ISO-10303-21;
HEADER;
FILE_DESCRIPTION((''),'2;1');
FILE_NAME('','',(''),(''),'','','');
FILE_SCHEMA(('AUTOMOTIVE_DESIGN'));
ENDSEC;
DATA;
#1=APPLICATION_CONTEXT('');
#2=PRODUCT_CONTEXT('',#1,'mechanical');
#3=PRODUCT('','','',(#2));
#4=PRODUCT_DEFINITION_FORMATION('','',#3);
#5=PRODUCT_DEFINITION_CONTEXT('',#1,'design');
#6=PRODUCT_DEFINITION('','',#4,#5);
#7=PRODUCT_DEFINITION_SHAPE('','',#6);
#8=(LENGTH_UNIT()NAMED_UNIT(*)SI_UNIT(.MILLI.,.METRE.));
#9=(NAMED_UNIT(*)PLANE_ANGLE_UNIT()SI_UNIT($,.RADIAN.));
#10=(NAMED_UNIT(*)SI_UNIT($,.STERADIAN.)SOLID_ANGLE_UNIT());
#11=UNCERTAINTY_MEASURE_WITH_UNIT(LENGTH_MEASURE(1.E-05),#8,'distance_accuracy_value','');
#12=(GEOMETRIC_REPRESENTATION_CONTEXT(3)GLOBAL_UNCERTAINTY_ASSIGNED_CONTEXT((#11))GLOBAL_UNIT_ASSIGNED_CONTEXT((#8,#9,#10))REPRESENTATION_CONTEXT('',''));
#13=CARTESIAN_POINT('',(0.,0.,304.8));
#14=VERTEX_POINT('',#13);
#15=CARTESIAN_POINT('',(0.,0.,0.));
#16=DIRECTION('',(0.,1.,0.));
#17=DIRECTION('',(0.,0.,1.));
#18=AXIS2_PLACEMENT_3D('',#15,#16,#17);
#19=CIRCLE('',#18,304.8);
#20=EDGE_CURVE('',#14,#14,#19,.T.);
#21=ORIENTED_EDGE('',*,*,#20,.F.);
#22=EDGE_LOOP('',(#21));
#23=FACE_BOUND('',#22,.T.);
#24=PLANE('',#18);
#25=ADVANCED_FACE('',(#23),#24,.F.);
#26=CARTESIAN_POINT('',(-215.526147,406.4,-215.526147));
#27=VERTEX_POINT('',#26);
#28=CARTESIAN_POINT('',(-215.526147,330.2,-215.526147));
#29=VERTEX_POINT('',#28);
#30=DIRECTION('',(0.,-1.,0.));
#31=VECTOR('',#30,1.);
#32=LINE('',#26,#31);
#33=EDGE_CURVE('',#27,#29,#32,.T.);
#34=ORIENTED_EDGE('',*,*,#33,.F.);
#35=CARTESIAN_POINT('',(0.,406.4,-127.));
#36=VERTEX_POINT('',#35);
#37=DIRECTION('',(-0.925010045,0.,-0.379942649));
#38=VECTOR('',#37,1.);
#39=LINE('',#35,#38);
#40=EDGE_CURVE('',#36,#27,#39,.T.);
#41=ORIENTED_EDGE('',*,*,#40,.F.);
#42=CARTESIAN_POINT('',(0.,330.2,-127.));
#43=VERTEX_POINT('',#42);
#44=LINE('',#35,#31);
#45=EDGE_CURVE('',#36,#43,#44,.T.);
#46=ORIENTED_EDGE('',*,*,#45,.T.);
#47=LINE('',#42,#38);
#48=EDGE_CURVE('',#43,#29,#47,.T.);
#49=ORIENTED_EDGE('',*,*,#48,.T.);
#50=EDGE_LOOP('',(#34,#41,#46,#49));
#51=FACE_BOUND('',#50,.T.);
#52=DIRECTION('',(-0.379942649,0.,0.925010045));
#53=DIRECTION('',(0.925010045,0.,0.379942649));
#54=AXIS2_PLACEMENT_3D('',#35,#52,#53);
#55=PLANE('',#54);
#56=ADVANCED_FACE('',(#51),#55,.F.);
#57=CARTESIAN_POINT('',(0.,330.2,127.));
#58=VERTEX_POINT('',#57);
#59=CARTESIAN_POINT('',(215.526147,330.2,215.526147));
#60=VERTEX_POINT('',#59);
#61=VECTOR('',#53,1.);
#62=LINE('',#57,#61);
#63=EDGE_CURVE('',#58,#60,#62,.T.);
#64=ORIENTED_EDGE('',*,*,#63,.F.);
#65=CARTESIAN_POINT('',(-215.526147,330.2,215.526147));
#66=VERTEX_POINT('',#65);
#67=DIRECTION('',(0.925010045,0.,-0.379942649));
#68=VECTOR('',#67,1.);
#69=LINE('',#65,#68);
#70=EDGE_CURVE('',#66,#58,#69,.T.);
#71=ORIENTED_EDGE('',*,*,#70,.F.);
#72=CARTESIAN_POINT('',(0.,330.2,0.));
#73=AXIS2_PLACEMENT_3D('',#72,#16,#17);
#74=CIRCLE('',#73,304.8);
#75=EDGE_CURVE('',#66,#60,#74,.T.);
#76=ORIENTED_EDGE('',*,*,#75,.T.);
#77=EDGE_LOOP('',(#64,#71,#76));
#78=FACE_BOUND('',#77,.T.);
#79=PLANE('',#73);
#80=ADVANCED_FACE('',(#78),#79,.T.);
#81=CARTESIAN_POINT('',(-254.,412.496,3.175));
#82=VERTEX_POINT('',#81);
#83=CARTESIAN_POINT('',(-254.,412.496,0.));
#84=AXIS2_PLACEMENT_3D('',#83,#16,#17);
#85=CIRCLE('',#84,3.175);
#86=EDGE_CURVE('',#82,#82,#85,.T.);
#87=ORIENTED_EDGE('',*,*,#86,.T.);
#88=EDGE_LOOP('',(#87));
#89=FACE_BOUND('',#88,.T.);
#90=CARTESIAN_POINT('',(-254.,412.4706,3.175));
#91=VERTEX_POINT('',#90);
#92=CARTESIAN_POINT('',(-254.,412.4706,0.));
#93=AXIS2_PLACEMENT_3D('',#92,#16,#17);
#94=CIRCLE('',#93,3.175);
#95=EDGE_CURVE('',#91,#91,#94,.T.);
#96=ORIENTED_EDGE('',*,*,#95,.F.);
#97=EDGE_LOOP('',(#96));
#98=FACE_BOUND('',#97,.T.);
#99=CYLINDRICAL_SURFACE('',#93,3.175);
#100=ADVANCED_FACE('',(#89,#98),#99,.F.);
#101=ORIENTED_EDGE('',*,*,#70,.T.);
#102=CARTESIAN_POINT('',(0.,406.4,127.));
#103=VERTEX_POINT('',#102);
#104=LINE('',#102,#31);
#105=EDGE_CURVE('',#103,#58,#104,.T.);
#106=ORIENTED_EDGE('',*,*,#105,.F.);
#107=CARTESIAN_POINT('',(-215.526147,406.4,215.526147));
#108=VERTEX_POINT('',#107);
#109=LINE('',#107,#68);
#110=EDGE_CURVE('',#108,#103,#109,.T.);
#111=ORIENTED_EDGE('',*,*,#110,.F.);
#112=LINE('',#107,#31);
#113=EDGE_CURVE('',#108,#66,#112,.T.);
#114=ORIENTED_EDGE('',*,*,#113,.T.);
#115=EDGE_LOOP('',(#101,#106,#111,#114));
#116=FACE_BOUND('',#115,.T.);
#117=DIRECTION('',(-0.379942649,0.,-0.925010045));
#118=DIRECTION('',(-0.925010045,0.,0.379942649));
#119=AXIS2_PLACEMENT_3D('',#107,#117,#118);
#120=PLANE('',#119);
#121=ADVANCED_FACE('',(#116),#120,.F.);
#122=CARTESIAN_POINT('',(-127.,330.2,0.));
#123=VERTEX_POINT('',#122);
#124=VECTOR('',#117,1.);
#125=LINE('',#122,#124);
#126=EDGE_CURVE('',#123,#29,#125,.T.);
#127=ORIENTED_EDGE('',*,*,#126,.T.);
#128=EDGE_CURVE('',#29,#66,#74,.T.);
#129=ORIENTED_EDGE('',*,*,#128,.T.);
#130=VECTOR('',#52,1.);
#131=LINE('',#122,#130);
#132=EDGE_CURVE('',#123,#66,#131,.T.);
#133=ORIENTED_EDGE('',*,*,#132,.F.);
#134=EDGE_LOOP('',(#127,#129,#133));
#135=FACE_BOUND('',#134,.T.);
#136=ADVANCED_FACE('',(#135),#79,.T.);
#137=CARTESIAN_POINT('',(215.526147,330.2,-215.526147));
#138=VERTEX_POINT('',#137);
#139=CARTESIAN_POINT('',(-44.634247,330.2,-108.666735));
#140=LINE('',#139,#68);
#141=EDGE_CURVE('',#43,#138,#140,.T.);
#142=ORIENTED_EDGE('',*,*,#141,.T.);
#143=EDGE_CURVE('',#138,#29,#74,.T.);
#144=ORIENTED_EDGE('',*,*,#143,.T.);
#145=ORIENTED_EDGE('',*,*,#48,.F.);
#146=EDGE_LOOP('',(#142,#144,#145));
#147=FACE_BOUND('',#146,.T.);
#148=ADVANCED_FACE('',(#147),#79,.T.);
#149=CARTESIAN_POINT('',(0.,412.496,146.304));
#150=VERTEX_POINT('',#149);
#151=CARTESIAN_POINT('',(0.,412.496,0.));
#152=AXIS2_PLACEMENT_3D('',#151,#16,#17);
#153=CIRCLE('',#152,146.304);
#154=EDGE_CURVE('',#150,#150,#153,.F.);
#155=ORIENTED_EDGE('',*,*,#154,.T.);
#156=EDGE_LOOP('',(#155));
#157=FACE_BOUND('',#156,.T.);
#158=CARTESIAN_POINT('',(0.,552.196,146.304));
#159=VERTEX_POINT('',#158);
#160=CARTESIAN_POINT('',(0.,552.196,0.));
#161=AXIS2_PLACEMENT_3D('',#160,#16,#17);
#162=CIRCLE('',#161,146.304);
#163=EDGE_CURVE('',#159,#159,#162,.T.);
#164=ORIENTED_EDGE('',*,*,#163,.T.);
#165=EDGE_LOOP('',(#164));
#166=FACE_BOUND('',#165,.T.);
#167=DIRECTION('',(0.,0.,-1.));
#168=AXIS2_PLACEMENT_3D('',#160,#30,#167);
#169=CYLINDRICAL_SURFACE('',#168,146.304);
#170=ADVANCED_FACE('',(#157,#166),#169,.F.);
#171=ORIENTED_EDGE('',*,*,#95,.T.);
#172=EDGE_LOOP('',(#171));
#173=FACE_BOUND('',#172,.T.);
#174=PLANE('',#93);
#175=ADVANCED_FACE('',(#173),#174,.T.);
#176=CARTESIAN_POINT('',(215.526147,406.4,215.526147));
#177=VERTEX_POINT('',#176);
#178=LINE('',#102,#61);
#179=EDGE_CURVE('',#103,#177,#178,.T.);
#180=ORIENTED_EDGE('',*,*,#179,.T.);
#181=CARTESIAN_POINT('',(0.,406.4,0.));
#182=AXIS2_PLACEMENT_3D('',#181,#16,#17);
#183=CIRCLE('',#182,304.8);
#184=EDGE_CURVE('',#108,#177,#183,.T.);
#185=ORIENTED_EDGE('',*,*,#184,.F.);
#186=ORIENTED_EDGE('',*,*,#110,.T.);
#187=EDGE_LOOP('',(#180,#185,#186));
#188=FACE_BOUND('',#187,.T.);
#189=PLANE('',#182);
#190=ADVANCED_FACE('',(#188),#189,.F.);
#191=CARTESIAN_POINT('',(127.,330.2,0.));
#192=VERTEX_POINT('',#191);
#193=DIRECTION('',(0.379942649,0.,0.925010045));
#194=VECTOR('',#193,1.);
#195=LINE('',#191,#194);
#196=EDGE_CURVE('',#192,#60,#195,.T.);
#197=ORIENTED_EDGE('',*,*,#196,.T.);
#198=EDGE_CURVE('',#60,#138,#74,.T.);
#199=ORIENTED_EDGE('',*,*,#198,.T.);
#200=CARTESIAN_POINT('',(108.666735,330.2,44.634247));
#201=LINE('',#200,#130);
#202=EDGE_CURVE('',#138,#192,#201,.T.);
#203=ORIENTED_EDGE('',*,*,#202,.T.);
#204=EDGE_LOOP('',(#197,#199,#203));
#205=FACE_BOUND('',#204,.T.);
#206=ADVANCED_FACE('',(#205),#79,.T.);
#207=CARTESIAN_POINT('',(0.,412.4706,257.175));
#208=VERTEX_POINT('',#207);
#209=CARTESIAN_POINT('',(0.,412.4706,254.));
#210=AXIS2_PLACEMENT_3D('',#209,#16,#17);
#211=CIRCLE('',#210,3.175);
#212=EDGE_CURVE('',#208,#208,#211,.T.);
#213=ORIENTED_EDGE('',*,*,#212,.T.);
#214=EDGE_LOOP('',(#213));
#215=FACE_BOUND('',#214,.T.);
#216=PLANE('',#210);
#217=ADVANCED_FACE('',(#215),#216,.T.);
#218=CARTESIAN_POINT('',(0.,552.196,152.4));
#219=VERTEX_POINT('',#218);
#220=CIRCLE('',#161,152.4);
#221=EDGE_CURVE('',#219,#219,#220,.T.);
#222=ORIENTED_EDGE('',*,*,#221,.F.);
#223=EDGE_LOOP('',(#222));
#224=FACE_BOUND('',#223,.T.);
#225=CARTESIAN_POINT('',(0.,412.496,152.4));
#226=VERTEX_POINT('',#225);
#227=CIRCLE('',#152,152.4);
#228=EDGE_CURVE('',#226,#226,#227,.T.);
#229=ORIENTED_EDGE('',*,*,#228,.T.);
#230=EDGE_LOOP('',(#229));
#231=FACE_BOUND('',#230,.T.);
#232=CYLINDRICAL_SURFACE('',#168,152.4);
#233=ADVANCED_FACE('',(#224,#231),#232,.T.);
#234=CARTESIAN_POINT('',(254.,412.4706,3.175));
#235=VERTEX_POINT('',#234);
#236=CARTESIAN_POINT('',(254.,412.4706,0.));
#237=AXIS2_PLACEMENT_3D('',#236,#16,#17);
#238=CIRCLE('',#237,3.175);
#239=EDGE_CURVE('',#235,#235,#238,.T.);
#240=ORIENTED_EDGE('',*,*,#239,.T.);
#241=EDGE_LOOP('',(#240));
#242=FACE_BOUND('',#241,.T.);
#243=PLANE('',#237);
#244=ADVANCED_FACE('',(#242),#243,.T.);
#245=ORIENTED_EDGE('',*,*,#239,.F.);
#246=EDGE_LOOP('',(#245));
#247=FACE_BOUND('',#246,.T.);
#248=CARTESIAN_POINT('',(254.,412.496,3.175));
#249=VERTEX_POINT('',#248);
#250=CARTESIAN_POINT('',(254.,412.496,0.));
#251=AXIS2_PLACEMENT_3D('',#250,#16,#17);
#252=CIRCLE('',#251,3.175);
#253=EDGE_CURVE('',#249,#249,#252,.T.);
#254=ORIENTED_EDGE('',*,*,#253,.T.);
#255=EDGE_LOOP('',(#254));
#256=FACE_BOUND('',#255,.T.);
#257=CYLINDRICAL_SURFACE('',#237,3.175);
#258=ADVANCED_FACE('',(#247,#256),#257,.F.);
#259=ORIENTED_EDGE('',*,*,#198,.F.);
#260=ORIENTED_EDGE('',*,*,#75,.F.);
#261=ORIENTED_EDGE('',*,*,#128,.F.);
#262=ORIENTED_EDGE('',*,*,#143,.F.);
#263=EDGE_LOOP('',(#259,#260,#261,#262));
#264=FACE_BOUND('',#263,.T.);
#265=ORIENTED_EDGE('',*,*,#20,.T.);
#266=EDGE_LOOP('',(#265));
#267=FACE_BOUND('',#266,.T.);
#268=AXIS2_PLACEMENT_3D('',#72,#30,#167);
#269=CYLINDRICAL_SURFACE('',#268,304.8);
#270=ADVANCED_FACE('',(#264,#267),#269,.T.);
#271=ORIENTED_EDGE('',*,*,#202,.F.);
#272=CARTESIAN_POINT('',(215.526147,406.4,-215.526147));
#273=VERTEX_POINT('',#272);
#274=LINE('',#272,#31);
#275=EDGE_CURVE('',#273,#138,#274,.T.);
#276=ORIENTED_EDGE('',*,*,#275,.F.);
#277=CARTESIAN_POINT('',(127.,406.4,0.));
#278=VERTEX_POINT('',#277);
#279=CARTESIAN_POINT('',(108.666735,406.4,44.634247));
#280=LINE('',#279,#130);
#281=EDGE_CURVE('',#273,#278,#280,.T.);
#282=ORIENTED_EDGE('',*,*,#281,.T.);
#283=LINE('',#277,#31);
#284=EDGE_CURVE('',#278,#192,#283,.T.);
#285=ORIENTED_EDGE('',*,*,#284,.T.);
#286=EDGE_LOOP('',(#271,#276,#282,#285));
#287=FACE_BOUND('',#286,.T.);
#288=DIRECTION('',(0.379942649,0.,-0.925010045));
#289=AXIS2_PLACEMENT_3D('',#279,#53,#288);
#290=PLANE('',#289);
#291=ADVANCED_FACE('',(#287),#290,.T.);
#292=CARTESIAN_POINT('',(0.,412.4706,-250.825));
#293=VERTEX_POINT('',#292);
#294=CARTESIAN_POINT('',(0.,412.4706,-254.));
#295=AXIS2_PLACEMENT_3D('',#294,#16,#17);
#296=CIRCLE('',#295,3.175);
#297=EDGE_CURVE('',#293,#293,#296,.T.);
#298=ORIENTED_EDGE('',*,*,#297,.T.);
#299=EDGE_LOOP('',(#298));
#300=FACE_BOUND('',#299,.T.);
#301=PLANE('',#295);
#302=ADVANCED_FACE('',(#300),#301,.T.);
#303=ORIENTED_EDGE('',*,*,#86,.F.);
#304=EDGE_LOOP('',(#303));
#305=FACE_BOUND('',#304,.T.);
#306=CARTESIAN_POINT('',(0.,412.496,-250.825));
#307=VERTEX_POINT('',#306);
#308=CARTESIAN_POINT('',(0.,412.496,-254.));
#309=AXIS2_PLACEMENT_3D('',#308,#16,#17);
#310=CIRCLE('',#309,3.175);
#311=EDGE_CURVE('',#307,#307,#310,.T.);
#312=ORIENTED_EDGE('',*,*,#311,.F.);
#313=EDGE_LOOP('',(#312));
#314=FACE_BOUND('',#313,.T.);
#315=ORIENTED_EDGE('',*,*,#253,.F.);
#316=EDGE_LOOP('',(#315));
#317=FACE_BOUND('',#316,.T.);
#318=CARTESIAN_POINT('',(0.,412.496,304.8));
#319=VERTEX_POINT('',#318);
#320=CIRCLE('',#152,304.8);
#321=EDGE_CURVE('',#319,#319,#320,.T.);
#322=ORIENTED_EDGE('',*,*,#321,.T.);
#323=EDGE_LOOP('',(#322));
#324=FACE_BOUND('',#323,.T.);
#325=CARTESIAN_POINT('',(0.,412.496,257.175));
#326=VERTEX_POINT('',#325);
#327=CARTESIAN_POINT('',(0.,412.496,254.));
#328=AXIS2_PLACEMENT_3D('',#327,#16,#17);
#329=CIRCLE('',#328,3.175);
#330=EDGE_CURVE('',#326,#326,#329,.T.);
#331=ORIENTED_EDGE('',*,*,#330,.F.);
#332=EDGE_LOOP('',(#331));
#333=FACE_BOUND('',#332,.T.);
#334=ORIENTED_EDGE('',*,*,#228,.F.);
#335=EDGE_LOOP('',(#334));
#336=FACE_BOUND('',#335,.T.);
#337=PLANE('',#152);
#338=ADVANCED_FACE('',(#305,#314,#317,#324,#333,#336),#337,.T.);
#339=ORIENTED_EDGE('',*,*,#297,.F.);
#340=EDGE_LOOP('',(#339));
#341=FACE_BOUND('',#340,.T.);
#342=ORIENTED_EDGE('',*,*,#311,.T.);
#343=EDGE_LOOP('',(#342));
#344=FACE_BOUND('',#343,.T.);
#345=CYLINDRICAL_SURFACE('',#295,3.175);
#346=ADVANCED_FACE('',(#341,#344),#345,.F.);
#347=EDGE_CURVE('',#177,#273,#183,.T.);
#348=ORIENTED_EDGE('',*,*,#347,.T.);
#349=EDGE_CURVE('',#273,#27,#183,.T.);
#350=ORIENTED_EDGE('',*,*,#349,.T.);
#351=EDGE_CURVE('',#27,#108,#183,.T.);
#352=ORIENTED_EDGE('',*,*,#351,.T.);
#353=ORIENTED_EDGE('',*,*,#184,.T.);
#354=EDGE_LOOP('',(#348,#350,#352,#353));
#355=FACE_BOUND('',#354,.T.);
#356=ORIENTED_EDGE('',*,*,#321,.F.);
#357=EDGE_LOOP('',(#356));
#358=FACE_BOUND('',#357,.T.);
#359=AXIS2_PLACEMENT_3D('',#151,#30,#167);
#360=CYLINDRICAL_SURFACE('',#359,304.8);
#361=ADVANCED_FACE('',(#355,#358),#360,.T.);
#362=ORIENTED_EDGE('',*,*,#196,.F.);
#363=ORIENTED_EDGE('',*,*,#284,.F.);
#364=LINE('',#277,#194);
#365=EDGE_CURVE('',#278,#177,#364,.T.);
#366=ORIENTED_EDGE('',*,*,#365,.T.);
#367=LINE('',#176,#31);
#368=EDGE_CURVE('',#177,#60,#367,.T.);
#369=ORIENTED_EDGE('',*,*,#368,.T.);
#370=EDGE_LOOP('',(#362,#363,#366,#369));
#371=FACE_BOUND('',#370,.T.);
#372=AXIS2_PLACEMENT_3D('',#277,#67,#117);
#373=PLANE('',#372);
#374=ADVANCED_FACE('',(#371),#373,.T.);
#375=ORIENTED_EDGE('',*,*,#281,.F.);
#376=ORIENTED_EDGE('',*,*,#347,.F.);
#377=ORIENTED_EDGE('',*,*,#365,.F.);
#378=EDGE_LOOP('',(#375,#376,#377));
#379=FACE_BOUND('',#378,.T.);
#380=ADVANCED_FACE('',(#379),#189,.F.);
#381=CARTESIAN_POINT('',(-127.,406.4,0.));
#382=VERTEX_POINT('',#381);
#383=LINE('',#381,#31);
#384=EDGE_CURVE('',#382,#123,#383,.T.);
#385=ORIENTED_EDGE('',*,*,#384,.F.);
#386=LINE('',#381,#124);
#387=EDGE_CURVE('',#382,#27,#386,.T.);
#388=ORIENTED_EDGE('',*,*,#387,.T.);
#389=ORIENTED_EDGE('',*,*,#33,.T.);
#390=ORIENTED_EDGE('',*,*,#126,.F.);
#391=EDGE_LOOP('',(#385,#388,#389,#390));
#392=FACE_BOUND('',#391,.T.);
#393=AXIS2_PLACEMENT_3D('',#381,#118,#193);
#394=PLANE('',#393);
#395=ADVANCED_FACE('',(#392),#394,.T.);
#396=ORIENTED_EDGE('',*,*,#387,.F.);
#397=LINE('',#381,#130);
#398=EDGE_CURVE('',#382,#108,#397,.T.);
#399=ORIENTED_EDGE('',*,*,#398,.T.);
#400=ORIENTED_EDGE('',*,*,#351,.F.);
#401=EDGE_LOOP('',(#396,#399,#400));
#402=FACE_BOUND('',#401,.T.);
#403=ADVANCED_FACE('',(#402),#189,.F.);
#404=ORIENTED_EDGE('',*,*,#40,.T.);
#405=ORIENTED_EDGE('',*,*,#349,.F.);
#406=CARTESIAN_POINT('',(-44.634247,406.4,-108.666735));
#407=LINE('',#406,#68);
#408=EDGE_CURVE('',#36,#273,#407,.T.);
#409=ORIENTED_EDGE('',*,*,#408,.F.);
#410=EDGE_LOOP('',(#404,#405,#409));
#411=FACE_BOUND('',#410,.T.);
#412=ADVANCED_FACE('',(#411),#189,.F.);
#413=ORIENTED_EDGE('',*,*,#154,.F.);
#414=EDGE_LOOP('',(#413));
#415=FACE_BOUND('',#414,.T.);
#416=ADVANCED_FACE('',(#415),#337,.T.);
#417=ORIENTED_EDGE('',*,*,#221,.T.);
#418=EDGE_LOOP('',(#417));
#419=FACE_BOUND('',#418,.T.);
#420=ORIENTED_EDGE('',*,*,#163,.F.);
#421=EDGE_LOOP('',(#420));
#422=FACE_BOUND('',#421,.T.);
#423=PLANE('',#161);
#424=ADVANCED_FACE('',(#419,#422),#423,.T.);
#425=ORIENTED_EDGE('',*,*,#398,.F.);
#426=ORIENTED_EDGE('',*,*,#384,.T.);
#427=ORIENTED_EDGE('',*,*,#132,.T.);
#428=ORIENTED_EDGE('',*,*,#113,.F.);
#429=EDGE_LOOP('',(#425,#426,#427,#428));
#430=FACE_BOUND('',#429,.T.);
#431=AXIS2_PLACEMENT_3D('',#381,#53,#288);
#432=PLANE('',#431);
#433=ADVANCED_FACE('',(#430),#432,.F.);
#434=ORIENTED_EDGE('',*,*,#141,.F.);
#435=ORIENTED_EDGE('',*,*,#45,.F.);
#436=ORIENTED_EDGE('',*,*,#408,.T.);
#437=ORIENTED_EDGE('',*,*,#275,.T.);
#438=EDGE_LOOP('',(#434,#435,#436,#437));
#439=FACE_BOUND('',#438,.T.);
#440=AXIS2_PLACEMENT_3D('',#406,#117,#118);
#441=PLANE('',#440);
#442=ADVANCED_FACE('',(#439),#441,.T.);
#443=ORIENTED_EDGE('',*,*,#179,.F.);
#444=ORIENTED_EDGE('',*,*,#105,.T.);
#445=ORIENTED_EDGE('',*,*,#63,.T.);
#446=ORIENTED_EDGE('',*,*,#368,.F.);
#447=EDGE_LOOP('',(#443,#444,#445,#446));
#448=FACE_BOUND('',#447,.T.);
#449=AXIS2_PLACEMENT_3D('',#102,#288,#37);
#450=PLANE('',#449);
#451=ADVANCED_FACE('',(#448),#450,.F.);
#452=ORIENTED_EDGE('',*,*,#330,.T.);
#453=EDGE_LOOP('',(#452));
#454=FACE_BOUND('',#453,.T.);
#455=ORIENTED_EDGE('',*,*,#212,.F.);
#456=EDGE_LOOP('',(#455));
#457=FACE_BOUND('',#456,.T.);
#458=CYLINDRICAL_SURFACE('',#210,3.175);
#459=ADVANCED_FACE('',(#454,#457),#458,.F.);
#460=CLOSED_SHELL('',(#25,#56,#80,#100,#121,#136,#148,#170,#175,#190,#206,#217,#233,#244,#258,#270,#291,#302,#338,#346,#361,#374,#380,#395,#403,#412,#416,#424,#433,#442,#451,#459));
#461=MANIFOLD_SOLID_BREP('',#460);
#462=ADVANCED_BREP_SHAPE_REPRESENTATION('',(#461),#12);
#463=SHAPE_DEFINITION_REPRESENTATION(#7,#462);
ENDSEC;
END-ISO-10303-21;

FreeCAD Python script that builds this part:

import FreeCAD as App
import Part
import Sketcher
from FreeCAD import Vector
Q = App.Units.Quantity


def add_polygon(sketch, points):
    """Adds a closed chain of lines whose ends are joined by coincident constraints."""
    first, n = sketch.GeometryCount, len(points)
    for a, b in zip(points, points[1:] + points[:1]):
        sketch.addGeometry(Part.LineSegment(App.Vector(*a, 0), App.Vector(*b, 0)), False)
    for i in range(n):
        sketch.addConstraint(Sketcher.Constraint("Coincident", first + i, 2, first + (i + 1) % n, 1))

doc = App.newDocument("Part")
body = doc.addObject("PartDesign::Body", "Body")

# Sketch on XZ plane
sketch1 = body.newObject("Sketcher::SketchObject", "Sketch")
sketch1.AttachmentSupport = (doc.getObject("XZ_Plane"), [""])
sketch1.MapMode = "FlatFace"
sketch1.addGeometry(Part.Circle(Vector(0, 0, 0), Vector(0, 0, 1), 304.8), False)
sketch1.addConstraint(Sketcher.Constraint("Coincident", 0, 3, -1, 1))
sketch1.addConstraint(Sketcher.Constraint("Diameter", 0, Q("24 in")))
pad1 = body.newObject("PartDesign::Pad", "Pad")
pad1.Profile = sketch1
pad1.Length = Q("13 in")
pad1.Reversed = True

# Sketch on XZ plane
sketch2 = body.newObject("Sketcher::SketchObject", "Sketch001")
sketch2.AttachmentSupport = (doc.getObject("XZ_Plane"), [""])
sketch2.MapMode = "FlatFace"
sketch2.AttachmentOffset = App.Placement(Vector(0, 0, -13 * 25.4), App.Rotation())
add_polygon(sketch2, [(-127, 0), (-215.526147, 215.526147), (0, 127), (215.526147, 215.526147), (127, 0), (215.526147, -215.526147), (0, -127), (-215.526147, -215.526147)])  # lines 0-7
sketch2.addConstraint(Sketcher.Constraint("Symmetric", 0, 2, 4, 2, -1, 1))
sketch2.addConstraint(Sketcher.Constraint("Symmetric", 1, 2, 5, 2, -1, 1))
sketch2.addConstraint(Sketcher.Constraint("Symmetric", 2, 2, 6, 2, -1, 1))
sketch2.addConstraint(Sketcher.Constraint("Symmetric", 3, 2, 7, 2, -1, 1))
sketch2.addConstraint(Sketcher.Constraint("Symmetric", 0, 2, 2, 2, -2))
sketch2.addConstraint(Sketcher.Constraint("PointOnObject", 1, 2, -2))
sketch2.addConstraint(Sketcher.Constraint("PointOnObject", 3, 2, -1))
sketch2.addConstraint(Sketcher.Constraint("Perpendicular", 0, 2))
sketch2.addConstraint(Sketcher.Constraint("Equal", 0, 1))
sketch2.addConstraint(Sketcher.Constraint("DistanceY", -1, 1, 1, 2, Q("5 in")))
sketch2.addConstraint(Sketcher.Constraint("Distance", 0, 232.99871))
pad2 = body.newObject("PartDesign::Pad", "Pad001")
pad2.Profile = sketch2
pad2.Length = Q("3 in")
pad2.Reversed = True

# Sketch on XZ plane
sketch3 = body.newObject("Sketcher::SketchObject", "Sketch002")
sketch3.AttachmentSupport = (doc.getObject("XZ_Plane"), [""])
sketch3.MapMode = "FlatFace"
sketch3.AttachmentOffset = App.Placement(Vector(0, 0, -16 * 25.4), App.Rotation())
sketch3.addGeometry(Part.Circle(Vector(0, 0, 0), Vector(0, 0, 1), 304.8), False)
sketch3.addConstraint(Sketcher.Constraint("Coincident", 0, 3, -1, 1))
sketch3.addConstraint(Sketcher.Constraint("Diameter", 0, Q("24 in")))
pad3 = body.newObject("PartDesign::Pad", "Pad002")
pad3.Profile = sketch3
pad3.Length = Q("0.24 in")
pad3.Reversed = True

# Sketch on XZ plane
sketch4 = body.newObject("Sketcher::SketchObject", "Sketch003")
sketch4.AttachmentSupport = (doc.getObject("XZ_Plane"), [""])
sketch4.MapMode = "FlatFace"
sketch4.AttachmentOffset = App.Placement(Vector(0, 0, -16.24 * 25.4), App.Rotation())
sketch4.addGeometry(Part.Circle(Vector(0, 0, 0), Vector(0, 0, 1), 152.4), False)
sketch4.addGeometry(Part.Circle(Vector(0, 0, 0), Vector(0, 0, 1), 146.304), False)
sketch4.addConstraint(Sketcher.Constraint("Coincident", 0, 3, -1, 1))
sketch4.addConstraint(Sketcher.Constraint("Coincident", 1, 3, -1, 1))
sketch4.addConstraint(Sketcher.Constraint("Diameter", 0, Q("12 in")))
sketch4.addConstraint(Sketcher.Constraint("Diameter", 1, Q("11.52 in")))
pad4 = body.newObject("PartDesign::Pad", "Pad003")
pad4.Profile = sketch4
pad4.Length = Q("5.5 in")
pad4.Reversed = True

# Sketch on XZ plane
sketch5 = body.newObject("Sketcher::SketchObject", "Sketch004")
sketch5.AttachmentSupport = (doc.getObject("XZ_Plane"), [""])
sketch5.MapMode = "FlatFace"
sketch5.AttachmentOffset = App.Placement(Vector(0, 0, -16.24 * 25.4), App.Rotation())
sketch5.addGeometry(Part.Circle(Vector(254, 0, 0), Vector(0, 0, 1), 3.175), False)
sketch5.addGeometry(Part.Circle(Vector(0, -254, 0), Vector(0, 0, 1), 3.175), False)
sketch5.addGeometry(Part.Circle(Vector(0, 254, 0), Vector(0, 0, 1), 3.175), False)
sketch5.addGeometry(Part.Circle(Vector(-254, 0, 0), Vector(0, 0, 1), 3.175), False)
sketch5.addConstraint(Sketcher.Constraint("Equal", 0, 1))
sketch5.addConstraint(Sketcher.Constraint("Equal", 1, 2))
sketch5.addConstraint(Sketcher.Constraint("Equal", 2, 3))
sketch5.addConstraint(Sketcher.Constraint("Symmetric", 1, 3, 2, 3, -1, 1))
sketch5.addConstraint(Sketcher.Constraint("Symmetric", 0, 3, 3, 3, -1, 1))
sketch5.addConstraint(Sketcher.Constraint("PointOnObject", 0, 3, -1))
sketch5.addConstraint(Sketcher.Constraint("PointOnObject", 1, 3, -2))
sketch5.addConstraint(Sketcher.Constraint("Diameter", 0, Q("0.25 in")))
sketch5.addConstraint(Sketcher.Constraint("DistanceX", -1, 1, 0, 3, Q("10 in")))
sketch5.addConstraint(Sketcher.Constraint("DistanceY", 1, 3, -1, 1, Q("10 in")))
pocket1 = body.newObject("PartDesign::Pocket", "Pocket")
pocket1.Profile = sketch5
pocket1.Length = Q("0.001 in")
pocket1.Reversed = True

doc.recompute()
